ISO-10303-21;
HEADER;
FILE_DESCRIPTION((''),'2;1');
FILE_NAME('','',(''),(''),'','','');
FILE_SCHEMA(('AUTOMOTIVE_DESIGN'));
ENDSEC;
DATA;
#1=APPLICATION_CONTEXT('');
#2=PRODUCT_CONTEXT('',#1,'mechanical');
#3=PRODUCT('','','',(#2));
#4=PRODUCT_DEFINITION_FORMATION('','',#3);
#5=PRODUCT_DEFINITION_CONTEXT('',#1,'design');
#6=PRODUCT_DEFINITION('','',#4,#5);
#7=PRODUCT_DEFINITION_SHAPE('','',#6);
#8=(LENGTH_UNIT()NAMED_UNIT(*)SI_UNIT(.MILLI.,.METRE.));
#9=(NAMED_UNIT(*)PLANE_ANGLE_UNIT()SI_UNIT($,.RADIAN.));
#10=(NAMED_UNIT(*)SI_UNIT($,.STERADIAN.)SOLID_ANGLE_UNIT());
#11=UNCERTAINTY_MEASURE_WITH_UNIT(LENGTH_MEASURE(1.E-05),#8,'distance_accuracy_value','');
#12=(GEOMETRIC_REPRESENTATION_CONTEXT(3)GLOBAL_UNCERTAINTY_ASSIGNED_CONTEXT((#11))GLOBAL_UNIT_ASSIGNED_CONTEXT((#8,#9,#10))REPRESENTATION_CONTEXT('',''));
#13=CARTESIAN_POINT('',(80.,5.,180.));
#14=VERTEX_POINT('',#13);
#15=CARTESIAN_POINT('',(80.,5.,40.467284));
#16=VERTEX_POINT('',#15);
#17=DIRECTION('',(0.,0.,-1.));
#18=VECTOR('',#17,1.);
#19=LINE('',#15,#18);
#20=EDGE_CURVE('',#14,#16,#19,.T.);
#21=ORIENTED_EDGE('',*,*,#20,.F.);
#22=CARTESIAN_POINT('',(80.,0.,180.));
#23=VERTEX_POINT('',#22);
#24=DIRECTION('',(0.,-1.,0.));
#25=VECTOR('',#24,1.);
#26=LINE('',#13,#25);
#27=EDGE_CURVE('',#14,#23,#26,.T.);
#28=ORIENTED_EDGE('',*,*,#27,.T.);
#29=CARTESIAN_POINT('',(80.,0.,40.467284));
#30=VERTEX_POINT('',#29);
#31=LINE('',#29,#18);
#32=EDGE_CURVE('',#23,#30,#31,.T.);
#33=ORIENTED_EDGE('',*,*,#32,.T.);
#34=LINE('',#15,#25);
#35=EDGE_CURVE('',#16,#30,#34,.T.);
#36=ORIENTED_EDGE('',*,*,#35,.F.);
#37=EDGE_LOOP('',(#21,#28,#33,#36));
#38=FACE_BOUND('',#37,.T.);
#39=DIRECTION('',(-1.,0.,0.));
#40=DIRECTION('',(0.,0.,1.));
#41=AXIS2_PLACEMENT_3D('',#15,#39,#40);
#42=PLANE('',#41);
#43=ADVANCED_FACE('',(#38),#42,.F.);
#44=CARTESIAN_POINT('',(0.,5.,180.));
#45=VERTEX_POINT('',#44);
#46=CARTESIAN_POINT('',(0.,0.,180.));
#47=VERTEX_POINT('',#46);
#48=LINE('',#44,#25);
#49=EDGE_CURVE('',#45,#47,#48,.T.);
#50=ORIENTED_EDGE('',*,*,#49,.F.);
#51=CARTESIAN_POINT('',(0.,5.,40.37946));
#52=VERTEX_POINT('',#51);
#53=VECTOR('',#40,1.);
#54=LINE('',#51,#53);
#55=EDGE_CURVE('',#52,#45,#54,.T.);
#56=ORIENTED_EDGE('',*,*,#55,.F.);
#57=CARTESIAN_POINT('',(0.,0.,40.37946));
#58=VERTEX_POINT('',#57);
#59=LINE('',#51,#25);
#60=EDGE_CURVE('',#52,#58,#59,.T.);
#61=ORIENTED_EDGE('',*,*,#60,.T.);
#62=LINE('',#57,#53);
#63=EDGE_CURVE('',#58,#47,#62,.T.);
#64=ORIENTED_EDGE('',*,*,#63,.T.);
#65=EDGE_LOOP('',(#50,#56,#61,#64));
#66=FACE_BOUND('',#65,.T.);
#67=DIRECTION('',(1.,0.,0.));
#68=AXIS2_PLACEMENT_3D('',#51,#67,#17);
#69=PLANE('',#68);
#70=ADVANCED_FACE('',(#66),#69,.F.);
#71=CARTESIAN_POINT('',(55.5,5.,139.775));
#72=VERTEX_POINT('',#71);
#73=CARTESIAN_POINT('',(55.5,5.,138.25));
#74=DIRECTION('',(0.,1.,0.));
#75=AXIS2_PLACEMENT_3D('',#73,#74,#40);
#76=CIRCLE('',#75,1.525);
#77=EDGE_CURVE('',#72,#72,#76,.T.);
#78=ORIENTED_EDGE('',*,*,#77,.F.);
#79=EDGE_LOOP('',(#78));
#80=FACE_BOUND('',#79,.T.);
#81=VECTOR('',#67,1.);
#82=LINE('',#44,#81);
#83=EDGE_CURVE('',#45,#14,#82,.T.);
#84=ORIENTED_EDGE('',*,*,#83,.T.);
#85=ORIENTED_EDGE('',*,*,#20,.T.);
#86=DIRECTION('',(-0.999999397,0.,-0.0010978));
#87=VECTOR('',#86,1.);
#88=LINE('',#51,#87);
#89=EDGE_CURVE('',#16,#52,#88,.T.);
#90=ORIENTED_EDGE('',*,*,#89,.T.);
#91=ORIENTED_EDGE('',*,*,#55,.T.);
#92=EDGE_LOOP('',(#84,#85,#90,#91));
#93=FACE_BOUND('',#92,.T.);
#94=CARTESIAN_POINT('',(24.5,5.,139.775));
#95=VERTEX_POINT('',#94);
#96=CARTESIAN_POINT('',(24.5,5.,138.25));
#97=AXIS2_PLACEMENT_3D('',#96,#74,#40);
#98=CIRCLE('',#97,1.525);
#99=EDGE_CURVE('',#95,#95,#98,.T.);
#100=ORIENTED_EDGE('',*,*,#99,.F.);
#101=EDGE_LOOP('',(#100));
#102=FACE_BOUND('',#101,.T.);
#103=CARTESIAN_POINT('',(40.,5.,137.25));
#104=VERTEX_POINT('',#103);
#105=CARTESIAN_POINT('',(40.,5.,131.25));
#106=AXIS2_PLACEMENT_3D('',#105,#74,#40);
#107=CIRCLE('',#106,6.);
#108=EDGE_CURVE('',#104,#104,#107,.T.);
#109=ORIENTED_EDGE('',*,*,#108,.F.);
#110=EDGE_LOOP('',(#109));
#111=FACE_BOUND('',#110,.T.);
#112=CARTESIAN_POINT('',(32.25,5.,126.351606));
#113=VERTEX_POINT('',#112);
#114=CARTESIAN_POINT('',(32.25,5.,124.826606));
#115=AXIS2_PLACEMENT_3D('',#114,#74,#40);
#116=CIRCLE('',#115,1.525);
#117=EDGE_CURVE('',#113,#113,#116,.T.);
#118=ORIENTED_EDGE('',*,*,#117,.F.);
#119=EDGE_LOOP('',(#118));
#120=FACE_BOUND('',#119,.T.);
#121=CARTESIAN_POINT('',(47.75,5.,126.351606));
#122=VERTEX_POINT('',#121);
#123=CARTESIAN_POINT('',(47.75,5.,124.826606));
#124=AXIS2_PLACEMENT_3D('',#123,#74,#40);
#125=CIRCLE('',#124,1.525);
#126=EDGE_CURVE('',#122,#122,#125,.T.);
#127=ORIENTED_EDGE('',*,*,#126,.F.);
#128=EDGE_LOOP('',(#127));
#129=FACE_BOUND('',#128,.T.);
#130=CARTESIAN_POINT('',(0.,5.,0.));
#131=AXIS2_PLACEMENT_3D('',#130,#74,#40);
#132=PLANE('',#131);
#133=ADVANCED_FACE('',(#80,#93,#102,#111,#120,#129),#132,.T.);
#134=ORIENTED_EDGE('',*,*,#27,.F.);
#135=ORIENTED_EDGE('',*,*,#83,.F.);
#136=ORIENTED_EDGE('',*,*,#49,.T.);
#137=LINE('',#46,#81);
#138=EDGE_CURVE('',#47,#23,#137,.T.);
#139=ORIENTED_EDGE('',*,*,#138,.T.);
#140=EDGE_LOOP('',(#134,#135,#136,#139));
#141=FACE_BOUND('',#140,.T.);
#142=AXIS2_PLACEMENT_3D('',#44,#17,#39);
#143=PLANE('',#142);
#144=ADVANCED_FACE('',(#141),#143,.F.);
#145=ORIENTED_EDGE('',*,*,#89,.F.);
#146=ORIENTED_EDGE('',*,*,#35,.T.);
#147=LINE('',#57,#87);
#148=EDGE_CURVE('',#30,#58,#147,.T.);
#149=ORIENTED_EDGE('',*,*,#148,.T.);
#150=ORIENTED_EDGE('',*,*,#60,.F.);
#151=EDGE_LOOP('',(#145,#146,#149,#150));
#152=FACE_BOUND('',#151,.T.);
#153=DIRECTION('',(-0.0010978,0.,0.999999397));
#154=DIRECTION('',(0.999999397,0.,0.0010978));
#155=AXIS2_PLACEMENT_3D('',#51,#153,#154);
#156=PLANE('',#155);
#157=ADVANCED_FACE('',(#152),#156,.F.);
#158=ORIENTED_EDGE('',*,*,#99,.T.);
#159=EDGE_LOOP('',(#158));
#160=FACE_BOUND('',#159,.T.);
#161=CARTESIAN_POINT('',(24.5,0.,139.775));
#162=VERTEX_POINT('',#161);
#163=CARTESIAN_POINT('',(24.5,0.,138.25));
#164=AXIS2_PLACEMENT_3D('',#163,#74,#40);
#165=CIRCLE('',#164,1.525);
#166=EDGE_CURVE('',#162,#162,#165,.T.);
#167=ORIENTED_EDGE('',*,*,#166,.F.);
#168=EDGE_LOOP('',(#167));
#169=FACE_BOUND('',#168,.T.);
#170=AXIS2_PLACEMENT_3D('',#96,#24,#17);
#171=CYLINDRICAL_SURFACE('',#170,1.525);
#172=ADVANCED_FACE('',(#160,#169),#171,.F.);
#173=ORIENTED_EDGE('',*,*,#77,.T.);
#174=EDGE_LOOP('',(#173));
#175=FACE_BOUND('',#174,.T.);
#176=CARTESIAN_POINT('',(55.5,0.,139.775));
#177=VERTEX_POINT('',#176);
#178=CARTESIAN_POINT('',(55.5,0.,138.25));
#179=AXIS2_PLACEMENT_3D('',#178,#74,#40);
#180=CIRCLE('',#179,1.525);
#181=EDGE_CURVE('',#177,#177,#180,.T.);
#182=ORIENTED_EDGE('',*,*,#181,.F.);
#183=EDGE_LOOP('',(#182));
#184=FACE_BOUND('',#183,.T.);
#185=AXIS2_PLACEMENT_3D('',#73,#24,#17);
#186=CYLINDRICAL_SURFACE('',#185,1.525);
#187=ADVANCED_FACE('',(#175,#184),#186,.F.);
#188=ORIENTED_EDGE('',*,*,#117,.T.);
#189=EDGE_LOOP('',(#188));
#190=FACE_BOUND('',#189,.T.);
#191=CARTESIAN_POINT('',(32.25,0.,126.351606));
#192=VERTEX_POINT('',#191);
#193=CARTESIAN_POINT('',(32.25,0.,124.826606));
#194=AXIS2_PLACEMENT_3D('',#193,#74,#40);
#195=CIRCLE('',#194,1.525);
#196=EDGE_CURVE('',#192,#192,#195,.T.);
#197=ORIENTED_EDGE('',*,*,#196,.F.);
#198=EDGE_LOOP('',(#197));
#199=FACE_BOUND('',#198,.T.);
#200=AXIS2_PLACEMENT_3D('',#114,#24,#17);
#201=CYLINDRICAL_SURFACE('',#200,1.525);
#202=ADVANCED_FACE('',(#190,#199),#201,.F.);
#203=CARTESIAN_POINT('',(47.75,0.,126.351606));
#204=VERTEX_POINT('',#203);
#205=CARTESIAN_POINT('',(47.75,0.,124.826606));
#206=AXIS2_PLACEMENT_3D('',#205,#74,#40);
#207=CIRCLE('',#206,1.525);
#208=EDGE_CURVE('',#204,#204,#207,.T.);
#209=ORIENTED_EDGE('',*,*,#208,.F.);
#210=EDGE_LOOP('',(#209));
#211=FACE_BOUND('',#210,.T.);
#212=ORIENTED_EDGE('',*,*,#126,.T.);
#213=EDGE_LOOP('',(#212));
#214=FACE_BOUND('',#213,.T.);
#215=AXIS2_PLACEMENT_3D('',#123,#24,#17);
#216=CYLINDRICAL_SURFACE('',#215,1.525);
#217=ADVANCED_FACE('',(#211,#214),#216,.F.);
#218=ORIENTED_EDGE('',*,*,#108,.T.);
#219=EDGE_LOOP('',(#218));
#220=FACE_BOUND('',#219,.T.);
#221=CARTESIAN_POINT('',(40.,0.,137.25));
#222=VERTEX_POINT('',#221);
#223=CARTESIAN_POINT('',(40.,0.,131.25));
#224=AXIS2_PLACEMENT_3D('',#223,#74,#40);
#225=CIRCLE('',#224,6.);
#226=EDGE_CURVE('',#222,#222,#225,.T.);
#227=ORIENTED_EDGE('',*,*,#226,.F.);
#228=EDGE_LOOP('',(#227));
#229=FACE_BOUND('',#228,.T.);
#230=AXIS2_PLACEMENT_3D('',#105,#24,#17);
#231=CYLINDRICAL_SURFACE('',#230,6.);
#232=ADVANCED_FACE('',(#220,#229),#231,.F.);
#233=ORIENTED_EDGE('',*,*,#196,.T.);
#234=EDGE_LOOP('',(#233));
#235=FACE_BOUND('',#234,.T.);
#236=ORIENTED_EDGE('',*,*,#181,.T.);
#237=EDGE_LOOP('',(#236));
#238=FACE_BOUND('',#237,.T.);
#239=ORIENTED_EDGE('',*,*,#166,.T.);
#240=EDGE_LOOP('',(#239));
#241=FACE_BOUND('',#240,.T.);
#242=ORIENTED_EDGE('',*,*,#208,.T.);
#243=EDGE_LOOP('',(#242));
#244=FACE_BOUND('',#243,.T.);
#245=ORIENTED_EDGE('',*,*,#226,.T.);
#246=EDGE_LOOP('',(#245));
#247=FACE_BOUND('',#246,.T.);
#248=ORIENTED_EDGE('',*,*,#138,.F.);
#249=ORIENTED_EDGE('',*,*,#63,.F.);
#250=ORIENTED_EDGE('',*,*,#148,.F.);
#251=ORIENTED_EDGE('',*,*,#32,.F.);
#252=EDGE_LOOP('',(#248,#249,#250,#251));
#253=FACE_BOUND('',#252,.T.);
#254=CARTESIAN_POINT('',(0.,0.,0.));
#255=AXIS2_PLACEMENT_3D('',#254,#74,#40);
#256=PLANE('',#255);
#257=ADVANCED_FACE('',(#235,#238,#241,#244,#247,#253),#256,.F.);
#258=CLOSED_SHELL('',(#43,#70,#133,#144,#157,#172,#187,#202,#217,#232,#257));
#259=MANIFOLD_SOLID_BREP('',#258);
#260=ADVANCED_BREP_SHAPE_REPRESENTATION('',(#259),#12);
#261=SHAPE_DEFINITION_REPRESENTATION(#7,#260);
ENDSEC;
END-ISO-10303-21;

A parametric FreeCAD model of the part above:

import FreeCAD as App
import Part
import Sketcher
Q = App.Units.Quantity


def add_polygon(sketch, points):
    """Adds a closed chain of lines whose ends are joined by coincident constraints."""
    first, n = sketch.GeometryCount, len(points)
    for a, b in zip(points, points[1:] + points[:1]):
        sketch.addGeometry(Part.LineSegment(App.Vector(*a, 0), App.Vector(*b, 0)), False)
    for i in range(n):
        sketch.addConstraint(Sketcher.Constraint("Coincident", first + i, 2, first + (i + 1) % n, 1))

doc = App.newDocument("Part")
body = doc.addObject("PartDesign::Body", "Body")

# Sketch on XZ plane
sketch1 = doc.addObject("Sketcher::SketchObject", "Sketch")
body.addObject(sketch1)
sketch1.AttachmentSupport = (doc.XZ_Plane, [""])
sketch1.MapMode = "FlatFace"
add_polygon(sketch1, [(80, 40.5), (0, 40.4), (0, 180), (80, 180)])  # lines 0-3
sketch1.addGeometry(Part.Circle(App.Vector(55.5, 138.2, 0), App.Vector(0, 0, 1), 1.5), False)  # 4
sketch1.addGeometry(Part.Circle(App.Vector(24.5, 138.2, 0), App.Vector(0, 0, 1), 1.5), False)  # 5
sketch1.addGeometry(Part.Circle(App.Vector(47.8, 124.8, 0), App.Vector(0, 0, 1), 1.5), False)  # 6
sketch1.addGeometry(Part.Circle(App.Vector(40, 131.2, 0), App.Vector(0, 0, 1), 6), False)  # 7
sketch1.addGeometry(Part.Circle(App.Vector(32.2, 124.8, 0), App.Vector(0, 0, 1), 1.5), False)  # 8
sketch1.addConstraint([
    Sketcher.Constraint("Vertical", 1),
    Sketcher.Constraint("Horizontal", 2),
    Sketcher.Constraint("Vertical", 3),
    Sketcher.Constraint("Equal", 4, 5),
    Sketcher.Constraint("Equal", 5, 6),
    Sketcher.Constraint("Equal", 6, 8),
    Sketcher.Constraint("PointOnObject", 0, 2, -2),
    Sketcher.Constraint("Horizontal", 4, 3, 5, 3),
    Sketcher.Constraint("Horizontal", 6, 3, 8, 3),
    Sketcher.Constraint("Diameter", 7, Q("12 mm")),
    Sketcher.Constraint("Diameter", 4, Q("3.05 mm")),
    Sketcher.Constraint("DistanceX", 2, 1, 2, 2, Q("80 mm")),
    Sketcher.Constraint("DistanceX", -1, 1, 7, 3, Q("40 mm")),
    Sketcher.Constraint("DistanceY", -1, 1, 1, 2, Q("180 mm")),
    Sketcher.Constraint("DistanceX", 5, 3, 4, 3, Q("31 mm")),
    Sketcher.Constraint("DistanceY", 7, 3, 4, 3, Q("7 mm")),
    Sketcher.Constraint("DistanceX", -1, 1, 4, 3, Q("55.5 mm")),
    Sketcher.Constraint("DistanceX", 8, 3, 6, 3, Q("15.5 mm")),
    Sketcher.Constraint("DistanceY", -1, 1, 4, 3, Q("138.25 mm")),
    Sketcher.Constraint("DistanceX", -1, 1, 6, 3, Q("47.75 mm")),
    Sketcher.Constraint("DistanceY", 1, 1, 1, 2, Q("139.62054 mm")),
    Sketcher.Constraint("DistanceY", 3, 2, 3, 1, Q("139.532716 mm")),
    Sketcher.Constraint("DistanceY", -1, 1, 6, 3, Q("124.826606 mm")),
])
pad1 = doc.addObject("PartDesign::Pad", "Pad")
body.addObject(pad1)
pad1.Profile = sketch1
pad1.Length = 5
pad1.Reversed = True

doc.recompute()
